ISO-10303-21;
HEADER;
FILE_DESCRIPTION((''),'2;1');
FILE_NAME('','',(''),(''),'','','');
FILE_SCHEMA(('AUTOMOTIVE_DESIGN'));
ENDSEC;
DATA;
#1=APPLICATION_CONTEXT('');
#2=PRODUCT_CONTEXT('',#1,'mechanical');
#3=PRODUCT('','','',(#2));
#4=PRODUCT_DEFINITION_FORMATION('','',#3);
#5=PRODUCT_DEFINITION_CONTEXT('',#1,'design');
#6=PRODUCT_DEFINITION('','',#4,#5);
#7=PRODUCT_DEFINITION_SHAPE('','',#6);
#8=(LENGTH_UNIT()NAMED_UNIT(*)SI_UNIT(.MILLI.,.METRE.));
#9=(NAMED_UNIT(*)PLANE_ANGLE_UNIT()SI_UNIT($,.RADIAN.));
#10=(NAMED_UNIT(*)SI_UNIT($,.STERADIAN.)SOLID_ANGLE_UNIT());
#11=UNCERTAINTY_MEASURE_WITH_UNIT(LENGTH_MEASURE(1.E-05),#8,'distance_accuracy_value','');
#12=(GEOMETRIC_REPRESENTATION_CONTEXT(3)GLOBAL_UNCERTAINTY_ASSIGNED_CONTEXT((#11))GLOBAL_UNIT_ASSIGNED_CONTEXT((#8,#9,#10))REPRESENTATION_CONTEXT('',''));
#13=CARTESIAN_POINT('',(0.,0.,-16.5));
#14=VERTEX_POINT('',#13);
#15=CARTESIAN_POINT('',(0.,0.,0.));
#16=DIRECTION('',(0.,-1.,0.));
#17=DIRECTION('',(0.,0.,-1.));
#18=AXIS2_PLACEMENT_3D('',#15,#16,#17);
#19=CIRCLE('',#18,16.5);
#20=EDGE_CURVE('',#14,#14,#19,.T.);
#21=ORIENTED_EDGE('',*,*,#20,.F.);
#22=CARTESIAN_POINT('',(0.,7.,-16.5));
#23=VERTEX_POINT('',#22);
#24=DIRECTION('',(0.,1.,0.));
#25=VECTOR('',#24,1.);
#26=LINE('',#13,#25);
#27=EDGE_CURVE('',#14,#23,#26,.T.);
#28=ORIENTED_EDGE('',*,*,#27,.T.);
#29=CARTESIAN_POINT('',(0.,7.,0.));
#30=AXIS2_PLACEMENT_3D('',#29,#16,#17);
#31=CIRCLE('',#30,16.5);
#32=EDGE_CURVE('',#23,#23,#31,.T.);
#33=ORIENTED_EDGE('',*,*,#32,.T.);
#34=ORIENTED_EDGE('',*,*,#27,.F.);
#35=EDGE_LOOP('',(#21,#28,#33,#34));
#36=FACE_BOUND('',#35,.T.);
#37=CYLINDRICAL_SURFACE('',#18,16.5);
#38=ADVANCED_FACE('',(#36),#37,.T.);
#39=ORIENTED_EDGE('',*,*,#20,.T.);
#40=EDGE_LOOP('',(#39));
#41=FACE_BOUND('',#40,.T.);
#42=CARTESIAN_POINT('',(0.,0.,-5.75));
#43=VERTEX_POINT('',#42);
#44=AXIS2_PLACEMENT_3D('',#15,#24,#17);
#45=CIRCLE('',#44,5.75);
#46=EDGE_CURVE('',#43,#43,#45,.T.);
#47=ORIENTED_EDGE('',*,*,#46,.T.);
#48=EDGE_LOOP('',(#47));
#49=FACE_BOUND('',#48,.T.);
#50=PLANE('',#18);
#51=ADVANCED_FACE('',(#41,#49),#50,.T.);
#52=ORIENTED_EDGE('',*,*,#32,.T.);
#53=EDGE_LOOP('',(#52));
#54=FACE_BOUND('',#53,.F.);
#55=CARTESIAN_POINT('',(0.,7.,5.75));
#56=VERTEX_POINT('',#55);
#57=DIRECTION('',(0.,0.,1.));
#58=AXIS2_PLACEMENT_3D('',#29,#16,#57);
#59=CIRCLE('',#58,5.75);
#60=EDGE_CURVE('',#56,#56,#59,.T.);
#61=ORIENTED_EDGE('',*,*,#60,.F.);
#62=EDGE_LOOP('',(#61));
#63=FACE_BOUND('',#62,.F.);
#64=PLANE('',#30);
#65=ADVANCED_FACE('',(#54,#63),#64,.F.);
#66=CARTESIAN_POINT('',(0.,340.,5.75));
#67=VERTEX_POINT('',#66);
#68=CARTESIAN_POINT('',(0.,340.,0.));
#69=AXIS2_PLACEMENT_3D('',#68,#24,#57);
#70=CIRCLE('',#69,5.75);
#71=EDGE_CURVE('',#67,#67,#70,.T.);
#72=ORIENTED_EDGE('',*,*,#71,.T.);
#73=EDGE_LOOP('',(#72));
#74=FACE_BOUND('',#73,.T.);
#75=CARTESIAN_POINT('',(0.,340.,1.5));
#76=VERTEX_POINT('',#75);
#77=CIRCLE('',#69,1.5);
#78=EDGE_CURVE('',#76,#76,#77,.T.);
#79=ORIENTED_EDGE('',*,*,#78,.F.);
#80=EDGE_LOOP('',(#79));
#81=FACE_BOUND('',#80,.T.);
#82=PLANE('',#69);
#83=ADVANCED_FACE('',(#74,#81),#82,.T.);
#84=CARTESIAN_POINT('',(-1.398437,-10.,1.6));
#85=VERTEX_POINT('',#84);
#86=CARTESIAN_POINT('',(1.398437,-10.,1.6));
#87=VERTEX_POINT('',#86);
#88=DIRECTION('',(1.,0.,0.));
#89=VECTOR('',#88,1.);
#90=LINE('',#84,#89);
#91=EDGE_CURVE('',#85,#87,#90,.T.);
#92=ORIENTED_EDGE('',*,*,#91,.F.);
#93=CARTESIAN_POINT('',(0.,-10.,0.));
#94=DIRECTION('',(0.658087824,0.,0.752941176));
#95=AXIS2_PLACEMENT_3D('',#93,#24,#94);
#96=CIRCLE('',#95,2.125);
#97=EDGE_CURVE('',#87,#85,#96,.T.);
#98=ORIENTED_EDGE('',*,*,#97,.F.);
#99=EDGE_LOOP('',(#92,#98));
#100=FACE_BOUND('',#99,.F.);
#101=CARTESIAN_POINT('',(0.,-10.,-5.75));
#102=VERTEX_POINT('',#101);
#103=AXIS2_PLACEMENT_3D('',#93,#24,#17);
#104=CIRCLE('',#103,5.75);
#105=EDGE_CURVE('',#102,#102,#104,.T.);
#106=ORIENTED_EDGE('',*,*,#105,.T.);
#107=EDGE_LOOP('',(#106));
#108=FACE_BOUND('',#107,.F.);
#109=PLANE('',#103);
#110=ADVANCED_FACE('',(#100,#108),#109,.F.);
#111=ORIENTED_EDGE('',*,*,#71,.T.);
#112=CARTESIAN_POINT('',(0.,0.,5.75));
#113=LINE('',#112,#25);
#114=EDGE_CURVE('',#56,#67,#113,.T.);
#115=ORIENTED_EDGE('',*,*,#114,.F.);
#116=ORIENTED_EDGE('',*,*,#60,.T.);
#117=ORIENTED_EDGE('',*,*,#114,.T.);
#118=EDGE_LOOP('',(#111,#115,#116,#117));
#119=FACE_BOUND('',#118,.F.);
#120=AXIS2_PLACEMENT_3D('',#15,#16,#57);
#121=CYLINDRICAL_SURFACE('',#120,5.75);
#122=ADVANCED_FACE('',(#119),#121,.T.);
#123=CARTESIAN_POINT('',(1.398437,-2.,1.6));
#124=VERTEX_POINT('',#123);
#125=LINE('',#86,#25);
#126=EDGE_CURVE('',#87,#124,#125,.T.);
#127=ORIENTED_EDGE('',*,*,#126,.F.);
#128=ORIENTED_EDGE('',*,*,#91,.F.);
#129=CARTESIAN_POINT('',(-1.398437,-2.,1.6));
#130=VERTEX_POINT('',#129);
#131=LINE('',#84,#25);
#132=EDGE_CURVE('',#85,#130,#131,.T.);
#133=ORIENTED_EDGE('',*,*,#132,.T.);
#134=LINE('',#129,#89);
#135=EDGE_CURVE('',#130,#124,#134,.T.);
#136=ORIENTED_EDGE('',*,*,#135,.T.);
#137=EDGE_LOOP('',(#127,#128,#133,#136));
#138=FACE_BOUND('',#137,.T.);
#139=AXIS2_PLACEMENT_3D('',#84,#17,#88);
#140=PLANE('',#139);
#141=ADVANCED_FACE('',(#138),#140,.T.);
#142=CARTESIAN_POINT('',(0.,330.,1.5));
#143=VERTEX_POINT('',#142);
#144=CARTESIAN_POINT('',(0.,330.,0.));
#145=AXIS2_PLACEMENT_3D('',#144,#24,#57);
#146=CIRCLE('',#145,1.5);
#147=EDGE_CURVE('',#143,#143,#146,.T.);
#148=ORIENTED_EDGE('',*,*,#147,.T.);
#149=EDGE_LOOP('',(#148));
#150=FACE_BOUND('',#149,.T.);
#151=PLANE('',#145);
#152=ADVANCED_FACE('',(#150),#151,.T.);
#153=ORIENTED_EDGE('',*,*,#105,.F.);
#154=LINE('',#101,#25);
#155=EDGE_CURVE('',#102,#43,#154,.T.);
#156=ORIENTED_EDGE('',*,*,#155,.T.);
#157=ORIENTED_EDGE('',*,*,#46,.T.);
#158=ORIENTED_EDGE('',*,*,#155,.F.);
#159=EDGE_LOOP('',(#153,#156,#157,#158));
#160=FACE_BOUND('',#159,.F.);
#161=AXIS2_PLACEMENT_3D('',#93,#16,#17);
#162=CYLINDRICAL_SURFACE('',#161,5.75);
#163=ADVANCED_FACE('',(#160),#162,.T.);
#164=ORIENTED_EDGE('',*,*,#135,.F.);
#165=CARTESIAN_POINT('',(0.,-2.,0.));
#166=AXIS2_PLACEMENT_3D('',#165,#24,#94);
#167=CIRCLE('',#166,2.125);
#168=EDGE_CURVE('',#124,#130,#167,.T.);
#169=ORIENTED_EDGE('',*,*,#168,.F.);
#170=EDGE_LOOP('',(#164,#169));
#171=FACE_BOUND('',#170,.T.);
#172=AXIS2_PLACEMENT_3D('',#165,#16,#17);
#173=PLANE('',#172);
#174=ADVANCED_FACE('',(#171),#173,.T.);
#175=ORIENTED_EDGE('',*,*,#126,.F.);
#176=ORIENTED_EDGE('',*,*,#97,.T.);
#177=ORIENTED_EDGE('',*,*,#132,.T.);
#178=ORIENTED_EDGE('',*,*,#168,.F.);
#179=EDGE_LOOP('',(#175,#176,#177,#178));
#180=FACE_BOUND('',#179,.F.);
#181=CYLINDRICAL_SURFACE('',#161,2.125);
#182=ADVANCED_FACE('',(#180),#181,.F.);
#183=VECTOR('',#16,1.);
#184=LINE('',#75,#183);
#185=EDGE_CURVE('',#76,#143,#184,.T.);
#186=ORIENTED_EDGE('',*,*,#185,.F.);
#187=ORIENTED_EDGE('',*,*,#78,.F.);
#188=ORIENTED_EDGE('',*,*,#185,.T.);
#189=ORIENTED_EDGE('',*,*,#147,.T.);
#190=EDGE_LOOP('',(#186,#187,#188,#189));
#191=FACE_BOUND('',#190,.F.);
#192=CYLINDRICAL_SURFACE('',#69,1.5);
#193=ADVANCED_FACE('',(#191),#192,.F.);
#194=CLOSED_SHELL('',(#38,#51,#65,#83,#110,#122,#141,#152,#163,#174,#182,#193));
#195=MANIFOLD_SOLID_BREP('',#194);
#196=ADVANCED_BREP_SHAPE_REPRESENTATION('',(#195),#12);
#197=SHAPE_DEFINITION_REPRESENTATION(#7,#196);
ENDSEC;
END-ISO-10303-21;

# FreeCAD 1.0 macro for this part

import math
import FreeCAD as App
import Part
import Sketcher

doc = App.newDocument("Part")
body = doc.addObject("PartDesign::Body", "Body")

# Sketch on XZ plane
sketch1 = body.newObject("Sketcher::SketchObject", "Sketch")
sketch1.AttachmentSupport = (doc.getObject("XZ_Plane"), [""])
sketch1.MapMode = "FlatFace"
sketch1.addGeometry(Part.Circle(App.Vector(0, 0, 0), App.Vector(0, 0, 1), 6), False)
sketch1.addConstraint(Sketcher.Constraint("Coincident", 0, 3, -1, 1))
sketch1.addConstraint(Sketcher.Constraint("Diameter", 0, 11.5))
pad1 = body.newObject("PartDesign::Pad", "Pad")
pad1.Profile = sketch1
pad1.Length = 340
pad1.Reversed = True

# Sketch on XZ plane
sketch2 = body.newObject("Sketcher::SketchObject", "Sketch001")
sketch2.AttachmentSupport = (doc.getObject("XZ_Plane"), [""])
sketch2.MapMode = "FlatFace"
sketch2.addGeometry(Part.Circle(App.Vector(0, 0, 0), App.Vector(0, 0, 1), 16), False)
sketch2.addConstraint(Sketcher.Constraint("Coincident", 0, 3, -1, 1))
sketch2.addConstraint(Sketcher.Constraint("Diameter", 0, 33.0))
pad2 = body.newObject("PartDesign::Pad", "Pad001")
pad2.Profile = sketch2
pad2.Length = 7
pad2.Reversed = True

# Sketch on XZ plane
sketch3 = body.newObject("Sketcher::SketchObject", "Sketch002")
sketch3.AttachmentSupport = (doc.getObject("XZ_Plane"), [""])
sketch3.MapMode = "FlatFace"
sketch3.AttachmentOffset = App.Placement(App.Vector(0, 0, 10), App.Rotation())
sketch3.addGeometry(Part.Circle(App.Vector(0, 0, 0), App.Vector(0, 0, 1), 6), False)
sketch3.addConstraint(Sketcher.Constraint("Coincident", 0, 3, -1, 1))
sketch3.addConstraint(Sketcher.Constraint("Diameter", 0, 11.5))
pad3 = body.newObject("PartDesign::Pad", "Pad002")
pad3.Profile = sketch3
pad3.Length = 10
pad3.Reversed = True

# Sketch on XZ plane
sketch4 = body.newObject("Sketcher::SketchObject", "Sketch003")
sketch4.AttachmentSupport = (doc.getObject("XZ_Plane"), [""])
sketch4.MapMode = "FlatFace"
sketch4.AttachmentOffset = App.Placement(App.Vector(0, 0, 10), App.Rotation())
sketch4.addGeometry(Part.Circle(App.Vector(0, 0, 0), App.Vector(0, 0, 1), 2.1), False)
sketch4.addConstraint(Sketcher.Constraint("Coincident", 0, 3, -1, 1))
sketch4.addConstraint(Sketcher.Constraint("Diameter", 0, 4.25))
pocket1 = body.newObject("PartDesign::Pocket", "Pocket")
pocket1.Profile = sketch4
pocket1.Length = 8

# Sketch on XZ plane
sketch5 = body.newObject("Sketcher::SketchObject", "Sketch004")
sketch5.AttachmentSupport = (doc.getObject("XZ_Plane"), [""])
sketch5.MapMode = "FlatFace"
sketch5.AttachmentOffset = App.Placement(App.Vector(0, 0, 10), App.Rotation())
sketch5.addGeometry(Part.ArcOfCircle(Part.Circle(App.Vector(0, 0, 0), App.Vector(0, 0, 1), 2.1), math.radians(49), math.radians(131)), False)
sketch5.addGeometry(Part.LineSegment(App.Vector(-1.4, 1.6, 0), App.Vector(1.4, 1.6, 0)), False)
sketch5.addConstraint(Sketcher.Constraint("Coincident", 0, 1, 1, 2))
sketch5.addConstraint(Sketcher.Constraint("Coincident", 1, 1, 0, 2))
sketch5.addConstraint(Sketcher.Constraint("Horizontal", 1))
sketch5.addConstraint(Sketcher.Constraint("Coincident", 0, 3, -1, 1))
sketch5.addConstraint(Sketcher.Constraint("Radius", 0, 2.125))
sketch5.addConstraint(Sketcher.Constraint("DistanceY", -1, 1, 0, 1, 1.6))
pad4 = body.newObject("PartDesign::Pad", "Pad003")
pad4.Profile = sketch5
pad4.Length = 8
pad4.Reversed = True

# Sketch on XZ plane
sketch6 = body.newObject("Sketcher::SketchObject", "Sketch005")
sketch6.AttachmentSupport = (doc.getObject("XZ_Plane"), [""])
sketch6.MapMode = "FlatFace"
sketch6.AttachmentOffset = App.Placement(App.Vector(0, 0, -340), App.Rotation())
sketch6.addGeometry(Part.Circle(App.Vector(0, 0, 0), App.Vector(0, 0, 1), 1.5), False)
sketch6.addConstraint(Sketcher.Constraint("Coincident", 0, 3, -1, 1))
sketch6.addConstraint(Sketcher.Constraint("Diameter", 0, 3.0))
pocket2 = body.newObject("PartDesign::Pocket", "Pocket001")
pocket2.Profile = sketch6
pocket2.Length = 10
pocket2.Reversed = True

doc.recompute()
